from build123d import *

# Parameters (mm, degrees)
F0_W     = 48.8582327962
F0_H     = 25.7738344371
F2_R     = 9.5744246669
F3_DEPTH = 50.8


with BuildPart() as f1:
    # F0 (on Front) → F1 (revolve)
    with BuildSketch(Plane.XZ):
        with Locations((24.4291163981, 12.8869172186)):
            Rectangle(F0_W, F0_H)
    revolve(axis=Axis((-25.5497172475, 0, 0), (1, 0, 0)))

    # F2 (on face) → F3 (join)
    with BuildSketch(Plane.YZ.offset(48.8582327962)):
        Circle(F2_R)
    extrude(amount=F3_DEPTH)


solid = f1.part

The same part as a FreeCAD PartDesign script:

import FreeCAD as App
import Part
import Sketcher
Q = App.Units.Quantity


def add_polygon(sketch, points):
    """Adds a closed chain of lines whose ends are joined by coincident constraints."""
    first, n = sketch.GeometryCount, len(points)
    for a, b in zip(points, points[1:] + points[:1]):
        sketch.addGeometry(Part.LineSegment(App.Vector(*a, 0), App.Vector(*b, 0)), False)
    for i in range(n):
        sketch.addConstraint(Sketcher.Constraint("Coincident", first + i, 2, first + (i + 1) % n, 1))

doc = App.newDocument("Part")
body = doc.addObject("PartDesign::Body", "Body")

sketch1 = body.newObject("Sketcher::SketchObject", "Sketch")
sketch1.AttachmentSupport = (doc.getObject("XZ_Plane"), [""])
sketch1.MapMode = "FlatFace"
add_polygon(sketch1, [(0, 26), (0, 0), (49, 0), (49, 26)])
sketch1.addConstraint([
    Sketcher.Constraint("Vertical", 0),
    Sketcher.Constraint("Horizontal", 1),
    Sketcher.Constraint("Vertical", 2),
    Sketcher.Constraint("Horizontal", 3),
    Sketcher.Constraint("Coincident", 0, 2, -1, 1),
    Sketcher.Constraint("DistanceX", 1, 1, 1, 2, Q("48.858233 mm")),
    Sketcher.Constraint("DistanceY", 0, 2, 0, 1, Q("25.773834 mm")),
])
revolution = body.newObject("PartDesign::Revolution", "Revolution")
revolution.Profile = sketch1
revolution.ReferenceAxis = (sketch1, ["H_Axis"])
revolution.Angle = 360

sketch2 = body.newObject("Sketcher::SketchObject", "Sketch001")
sketch2.AttachmentSupport = (doc.getObject("YZ_Plane"), [""])
sketch2.MapMode = "FlatFace"
sketch2.AttachmentOffset = App.Placement(App.Vector(0, 0, 48.858233), App.Rotation())
sketch2.addGeometry(Part.Circle(App.Vector(0, 0, 0), App.Vector(0, 0, 1), 10), False)
sketch2.addConstraint([
    Sketcher.Constraint("Coincident", 0, 3, -1, 1),
    Sketcher.Constraint("Diameter", 0, Q("19.148849 mm")),
])
pad1 = body.newObject("PartDesign::Pad", "Pad")
pad1.Profile = sketch2
pad1.Length = Q("2 in")

doc.recompute()
